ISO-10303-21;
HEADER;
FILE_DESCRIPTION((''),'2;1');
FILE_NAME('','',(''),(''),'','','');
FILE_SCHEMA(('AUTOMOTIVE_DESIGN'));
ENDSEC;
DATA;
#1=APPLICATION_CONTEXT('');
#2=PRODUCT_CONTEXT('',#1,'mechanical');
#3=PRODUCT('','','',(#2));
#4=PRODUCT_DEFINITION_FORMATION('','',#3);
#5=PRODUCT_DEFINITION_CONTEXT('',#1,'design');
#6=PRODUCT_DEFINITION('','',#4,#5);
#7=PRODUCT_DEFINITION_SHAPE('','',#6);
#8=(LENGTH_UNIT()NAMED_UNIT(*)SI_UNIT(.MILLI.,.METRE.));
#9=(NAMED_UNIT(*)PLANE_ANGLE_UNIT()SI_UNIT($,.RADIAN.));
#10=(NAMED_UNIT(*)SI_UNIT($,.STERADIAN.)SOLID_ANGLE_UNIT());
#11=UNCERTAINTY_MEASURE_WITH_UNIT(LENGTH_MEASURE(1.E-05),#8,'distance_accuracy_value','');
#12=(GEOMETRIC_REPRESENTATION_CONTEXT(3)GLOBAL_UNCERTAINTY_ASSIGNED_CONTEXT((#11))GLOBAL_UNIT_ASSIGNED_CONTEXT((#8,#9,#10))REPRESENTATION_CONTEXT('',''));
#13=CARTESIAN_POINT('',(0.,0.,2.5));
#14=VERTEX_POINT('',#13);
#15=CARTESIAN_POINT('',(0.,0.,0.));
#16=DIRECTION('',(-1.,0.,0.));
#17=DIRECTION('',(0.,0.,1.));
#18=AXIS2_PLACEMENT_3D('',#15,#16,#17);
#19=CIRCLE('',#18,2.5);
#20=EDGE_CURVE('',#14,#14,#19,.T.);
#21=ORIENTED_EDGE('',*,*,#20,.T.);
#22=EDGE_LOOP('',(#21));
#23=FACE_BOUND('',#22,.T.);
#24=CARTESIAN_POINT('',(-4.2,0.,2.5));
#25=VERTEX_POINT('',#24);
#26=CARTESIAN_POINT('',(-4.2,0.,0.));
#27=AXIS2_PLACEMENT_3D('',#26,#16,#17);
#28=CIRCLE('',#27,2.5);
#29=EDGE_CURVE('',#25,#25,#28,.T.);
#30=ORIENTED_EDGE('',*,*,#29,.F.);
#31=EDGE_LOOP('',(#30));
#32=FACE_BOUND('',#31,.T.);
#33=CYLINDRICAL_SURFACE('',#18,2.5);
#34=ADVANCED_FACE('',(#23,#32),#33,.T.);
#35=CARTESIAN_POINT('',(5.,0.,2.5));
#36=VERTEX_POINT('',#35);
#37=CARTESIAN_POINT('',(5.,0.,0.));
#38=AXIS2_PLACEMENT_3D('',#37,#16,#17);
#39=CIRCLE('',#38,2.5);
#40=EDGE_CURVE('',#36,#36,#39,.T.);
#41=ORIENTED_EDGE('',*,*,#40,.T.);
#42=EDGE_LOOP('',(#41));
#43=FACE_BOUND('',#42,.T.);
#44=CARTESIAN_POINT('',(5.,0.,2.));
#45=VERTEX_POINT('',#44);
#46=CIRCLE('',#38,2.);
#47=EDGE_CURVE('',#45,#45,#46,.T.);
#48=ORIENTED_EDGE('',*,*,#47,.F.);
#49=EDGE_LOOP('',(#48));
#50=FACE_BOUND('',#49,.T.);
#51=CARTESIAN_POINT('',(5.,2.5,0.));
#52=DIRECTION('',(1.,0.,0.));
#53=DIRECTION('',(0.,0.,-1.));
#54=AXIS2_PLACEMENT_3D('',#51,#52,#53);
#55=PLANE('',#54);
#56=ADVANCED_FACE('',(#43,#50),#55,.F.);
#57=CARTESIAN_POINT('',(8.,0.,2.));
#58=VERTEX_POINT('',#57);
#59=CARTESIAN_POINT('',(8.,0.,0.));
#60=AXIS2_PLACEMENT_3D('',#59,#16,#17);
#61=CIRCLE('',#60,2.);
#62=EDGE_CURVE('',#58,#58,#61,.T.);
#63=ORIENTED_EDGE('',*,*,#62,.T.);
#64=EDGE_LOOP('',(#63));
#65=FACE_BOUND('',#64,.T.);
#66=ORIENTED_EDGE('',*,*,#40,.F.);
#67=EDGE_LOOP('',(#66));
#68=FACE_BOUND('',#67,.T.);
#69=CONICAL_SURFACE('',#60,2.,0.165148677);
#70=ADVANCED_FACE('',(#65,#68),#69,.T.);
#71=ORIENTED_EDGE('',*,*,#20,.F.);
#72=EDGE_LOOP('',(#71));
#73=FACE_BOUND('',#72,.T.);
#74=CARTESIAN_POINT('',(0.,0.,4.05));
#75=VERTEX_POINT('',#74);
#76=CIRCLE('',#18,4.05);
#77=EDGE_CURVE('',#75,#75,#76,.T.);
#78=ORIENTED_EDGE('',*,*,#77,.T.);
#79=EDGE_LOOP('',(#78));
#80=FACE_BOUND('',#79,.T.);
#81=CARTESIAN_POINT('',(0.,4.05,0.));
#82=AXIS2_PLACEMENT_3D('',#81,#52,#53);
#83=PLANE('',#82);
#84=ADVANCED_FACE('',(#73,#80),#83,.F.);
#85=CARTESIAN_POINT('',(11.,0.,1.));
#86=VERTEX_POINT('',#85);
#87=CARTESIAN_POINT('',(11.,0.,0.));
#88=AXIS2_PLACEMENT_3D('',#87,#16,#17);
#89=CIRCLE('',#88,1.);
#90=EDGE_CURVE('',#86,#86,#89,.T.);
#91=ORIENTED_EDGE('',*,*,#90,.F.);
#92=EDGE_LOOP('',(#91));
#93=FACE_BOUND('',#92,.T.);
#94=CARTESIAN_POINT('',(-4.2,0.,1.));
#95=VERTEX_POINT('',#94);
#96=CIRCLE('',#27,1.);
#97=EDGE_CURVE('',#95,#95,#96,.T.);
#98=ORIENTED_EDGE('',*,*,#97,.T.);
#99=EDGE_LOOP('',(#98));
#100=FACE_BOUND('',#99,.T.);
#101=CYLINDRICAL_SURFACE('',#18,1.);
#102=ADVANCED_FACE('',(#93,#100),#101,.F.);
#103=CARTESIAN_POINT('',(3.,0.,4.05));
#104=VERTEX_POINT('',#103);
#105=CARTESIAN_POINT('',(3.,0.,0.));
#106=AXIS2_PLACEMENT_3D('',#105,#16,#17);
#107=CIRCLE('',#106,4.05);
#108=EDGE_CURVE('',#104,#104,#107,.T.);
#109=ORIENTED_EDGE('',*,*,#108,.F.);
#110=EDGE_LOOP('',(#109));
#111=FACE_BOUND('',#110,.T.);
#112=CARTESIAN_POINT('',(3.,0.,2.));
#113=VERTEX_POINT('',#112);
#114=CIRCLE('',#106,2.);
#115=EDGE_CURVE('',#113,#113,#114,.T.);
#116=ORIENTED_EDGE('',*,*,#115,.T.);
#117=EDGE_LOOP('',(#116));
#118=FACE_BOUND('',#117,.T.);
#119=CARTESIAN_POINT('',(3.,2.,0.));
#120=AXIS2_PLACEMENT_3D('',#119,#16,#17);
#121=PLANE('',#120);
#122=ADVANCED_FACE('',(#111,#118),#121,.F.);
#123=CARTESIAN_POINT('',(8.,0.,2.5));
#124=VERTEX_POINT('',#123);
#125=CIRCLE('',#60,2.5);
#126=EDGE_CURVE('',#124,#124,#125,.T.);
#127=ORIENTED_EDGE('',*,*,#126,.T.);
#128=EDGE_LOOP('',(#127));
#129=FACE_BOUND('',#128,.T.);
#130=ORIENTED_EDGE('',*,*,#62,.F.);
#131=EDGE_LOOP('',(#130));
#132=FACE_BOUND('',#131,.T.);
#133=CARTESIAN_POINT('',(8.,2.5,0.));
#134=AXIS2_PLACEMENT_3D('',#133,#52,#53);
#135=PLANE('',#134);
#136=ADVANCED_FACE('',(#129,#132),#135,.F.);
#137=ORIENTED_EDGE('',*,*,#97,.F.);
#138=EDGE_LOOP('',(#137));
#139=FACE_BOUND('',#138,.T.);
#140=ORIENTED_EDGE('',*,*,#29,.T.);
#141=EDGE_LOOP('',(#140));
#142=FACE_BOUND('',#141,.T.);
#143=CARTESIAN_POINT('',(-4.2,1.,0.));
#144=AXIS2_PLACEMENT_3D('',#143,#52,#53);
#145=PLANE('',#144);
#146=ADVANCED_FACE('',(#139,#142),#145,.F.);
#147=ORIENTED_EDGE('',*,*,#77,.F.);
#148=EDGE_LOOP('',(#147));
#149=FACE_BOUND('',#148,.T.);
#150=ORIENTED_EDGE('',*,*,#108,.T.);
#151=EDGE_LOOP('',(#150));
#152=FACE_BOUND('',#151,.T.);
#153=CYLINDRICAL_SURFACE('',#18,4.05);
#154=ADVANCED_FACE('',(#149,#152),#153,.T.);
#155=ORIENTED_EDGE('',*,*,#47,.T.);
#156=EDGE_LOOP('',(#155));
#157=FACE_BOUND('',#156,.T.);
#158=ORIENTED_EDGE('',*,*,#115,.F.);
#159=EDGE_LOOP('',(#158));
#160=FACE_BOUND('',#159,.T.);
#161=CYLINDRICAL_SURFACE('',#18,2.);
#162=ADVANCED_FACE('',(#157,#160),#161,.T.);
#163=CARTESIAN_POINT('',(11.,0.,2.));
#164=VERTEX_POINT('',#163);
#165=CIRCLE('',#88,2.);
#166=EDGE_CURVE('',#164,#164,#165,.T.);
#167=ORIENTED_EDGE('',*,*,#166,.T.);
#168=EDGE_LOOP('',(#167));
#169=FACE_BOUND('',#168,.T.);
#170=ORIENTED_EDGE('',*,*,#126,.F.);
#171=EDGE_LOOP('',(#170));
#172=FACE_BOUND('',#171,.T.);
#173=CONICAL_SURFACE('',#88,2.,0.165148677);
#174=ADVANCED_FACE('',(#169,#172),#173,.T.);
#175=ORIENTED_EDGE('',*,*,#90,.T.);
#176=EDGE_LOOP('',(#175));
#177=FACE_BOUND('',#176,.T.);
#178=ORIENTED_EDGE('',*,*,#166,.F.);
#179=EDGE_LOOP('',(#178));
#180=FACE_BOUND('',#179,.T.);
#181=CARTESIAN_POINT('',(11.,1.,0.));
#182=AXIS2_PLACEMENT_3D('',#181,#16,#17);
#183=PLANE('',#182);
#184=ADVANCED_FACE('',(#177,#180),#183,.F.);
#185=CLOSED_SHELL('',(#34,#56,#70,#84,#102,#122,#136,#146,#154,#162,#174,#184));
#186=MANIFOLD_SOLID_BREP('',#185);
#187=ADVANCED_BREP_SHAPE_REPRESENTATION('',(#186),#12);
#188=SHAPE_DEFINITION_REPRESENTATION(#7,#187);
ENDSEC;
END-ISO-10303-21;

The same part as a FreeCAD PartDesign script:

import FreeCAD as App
import Part
import Sketcher

V = App.Vector
Q = App.Units.Quantity

doc = App.newDocument("Part")
body = doc.addObject("PartDesign::Body", "Body")

# Sketch on XY plane
sketch1 = body.newObject("Sketcher::SketchObject", "Sketch")
sketch1.AttachmentSupport = (doc.getObject("XY_Plane"), [""])
sketch1.MapMode = "FlatFace"
sketch1.addGeometry([
    Part.LineSegment(V(-4.2, 1, 0), V(11, 1, 0)),  # 0
    Part.LineSegment(V(11, 1, 0), V(11, 2, 0)),  # 1
    Part.LineSegment(V(11, 2, 0), V(8, 2.5, 0)),  # 2
    Part.LineSegment(V(8, 2.5, 0), V(8, 2, 0)),  # 3
    Part.LineSegment(V(8, 2, 0), V(5, 2.5, 0)),  # 4
    Part.LineSegment(V(5, 2.5, 0), V(5, 2, 0)),  # 5
    Part.LineSegment(V(5, 2, 0), V(3, 2, 0)),  # 6
    Part.LineSegment(V(3, 2, 0), V(3, 4, 0)),  # 7
    Part.LineSegment(V(3, 4, 0), V(0, 4, 0)),  # 8
    Part.LineSegment(V(0, 4, 0), V(0, 2.5, 0)),  # 9
    Part.LineSegment(V(0, 2.5, 0), V(-4.2, 2.5, 0)),  # 10
    Part.LineSegment(V(-4.2, 2.5, 0), V(-4.2, 1, 0)),  # 11
], False)
sketch1.addConstraint([
    Sketcher.Constraint("Coincident", 0, 2, 1, 1),
    Sketcher.Constraint("Coincident", 1, 2, 2, 1),
    Sketcher.Constraint("Coincident", 2, 2, 3, 1),
    Sketcher.Constraint("Coincident", 3, 2, 4, 1),
    Sketcher.Constraint("Coincident", 4, 2, 5, 1),
    Sketcher.Constraint("Coincident", 5, 2, 6, 1),
    Sketcher.Constraint("Coincident", 6, 2, 7, 1),
    Sketcher.Constraint("Coincident", 7, 2, 8, 1),
    Sketcher.Constraint("Coincident", 8, 2, 9, 1),
    Sketcher.Constraint("Coincident", 9, 2, 10, 1),
    Sketcher.Constraint("Coincident", 10, 2, 11, 1),
    Sketcher.Constraint("Coincident", 11, 2, 0, 1),
    Sketcher.Constraint("Horizontal", 0),
    Sketcher.Constraint("Vertical", 1),
    Sketcher.Constraint("Vertical", 3),
    Sketcher.Constraint("Vertical", 5),
    Sketcher.Constraint("Horizontal", 6),
    Sketcher.Constraint("Vertical", 7),
    Sketcher.Constraint("Horizontal", 8),
    Sketcher.Constraint("Vertical", 9),
    Sketcher.Constraint("Horizontal", 10),
    Sketcher.Constraint("Vertical", 11),
    Sketcher.Constraint("PointOnObject", 8, 2, -2),
    Sketcher.Constraint("Parallel", 2, 4),
    Sketcher.Constraint("Horizontal", 1, 2, 3, 2),
    Sketcher.Constraint("Horizontal", 2, 2, 4, 2),
    Sketcher.Constraint("Horizontal", 3, 2, 5, 2),
    Sketcher.Constraint("Horizontal", 4, 2, 9, 2),
    Sketcher.Constraint("DistanceX", 6, 2, 6, 1, Q("2 mm")),
    Sketcher.Constraint("DistanceX", 8, 2, 8, 1, Q("3 mm")),
    Sketcher.Constraint("DistanceY", 1, 1, 1, 2, Q("1 mm")),
    Sketcher.Constraint("DistanceX", 0, 1, 0, 2, Q("15.2 mm")),
    Sketcher.Constraint("DistanceX", 10, 2, 10, 1, Q("4.2 mm")),
    Sketcher.Constraint("DistanceY", 3, 2, 3, 1, Q("0.5 mm")),
    Sketcher.Constraint("DistanceY", -1, 1, 0, 2, Q("1 mm")),
    Sketcher.Constraint("DistanceY", 7, 1, 7, 2, Q("2.05 mm")),
])
revolution = body.newObject("PartDesign::Revolution", "Revolution")
revolution.Profile = sketch1
revolution.ReferenceAxis = (sketch1, ["H_Axis"])
revolution.Angle = 360

doc.recompute()
